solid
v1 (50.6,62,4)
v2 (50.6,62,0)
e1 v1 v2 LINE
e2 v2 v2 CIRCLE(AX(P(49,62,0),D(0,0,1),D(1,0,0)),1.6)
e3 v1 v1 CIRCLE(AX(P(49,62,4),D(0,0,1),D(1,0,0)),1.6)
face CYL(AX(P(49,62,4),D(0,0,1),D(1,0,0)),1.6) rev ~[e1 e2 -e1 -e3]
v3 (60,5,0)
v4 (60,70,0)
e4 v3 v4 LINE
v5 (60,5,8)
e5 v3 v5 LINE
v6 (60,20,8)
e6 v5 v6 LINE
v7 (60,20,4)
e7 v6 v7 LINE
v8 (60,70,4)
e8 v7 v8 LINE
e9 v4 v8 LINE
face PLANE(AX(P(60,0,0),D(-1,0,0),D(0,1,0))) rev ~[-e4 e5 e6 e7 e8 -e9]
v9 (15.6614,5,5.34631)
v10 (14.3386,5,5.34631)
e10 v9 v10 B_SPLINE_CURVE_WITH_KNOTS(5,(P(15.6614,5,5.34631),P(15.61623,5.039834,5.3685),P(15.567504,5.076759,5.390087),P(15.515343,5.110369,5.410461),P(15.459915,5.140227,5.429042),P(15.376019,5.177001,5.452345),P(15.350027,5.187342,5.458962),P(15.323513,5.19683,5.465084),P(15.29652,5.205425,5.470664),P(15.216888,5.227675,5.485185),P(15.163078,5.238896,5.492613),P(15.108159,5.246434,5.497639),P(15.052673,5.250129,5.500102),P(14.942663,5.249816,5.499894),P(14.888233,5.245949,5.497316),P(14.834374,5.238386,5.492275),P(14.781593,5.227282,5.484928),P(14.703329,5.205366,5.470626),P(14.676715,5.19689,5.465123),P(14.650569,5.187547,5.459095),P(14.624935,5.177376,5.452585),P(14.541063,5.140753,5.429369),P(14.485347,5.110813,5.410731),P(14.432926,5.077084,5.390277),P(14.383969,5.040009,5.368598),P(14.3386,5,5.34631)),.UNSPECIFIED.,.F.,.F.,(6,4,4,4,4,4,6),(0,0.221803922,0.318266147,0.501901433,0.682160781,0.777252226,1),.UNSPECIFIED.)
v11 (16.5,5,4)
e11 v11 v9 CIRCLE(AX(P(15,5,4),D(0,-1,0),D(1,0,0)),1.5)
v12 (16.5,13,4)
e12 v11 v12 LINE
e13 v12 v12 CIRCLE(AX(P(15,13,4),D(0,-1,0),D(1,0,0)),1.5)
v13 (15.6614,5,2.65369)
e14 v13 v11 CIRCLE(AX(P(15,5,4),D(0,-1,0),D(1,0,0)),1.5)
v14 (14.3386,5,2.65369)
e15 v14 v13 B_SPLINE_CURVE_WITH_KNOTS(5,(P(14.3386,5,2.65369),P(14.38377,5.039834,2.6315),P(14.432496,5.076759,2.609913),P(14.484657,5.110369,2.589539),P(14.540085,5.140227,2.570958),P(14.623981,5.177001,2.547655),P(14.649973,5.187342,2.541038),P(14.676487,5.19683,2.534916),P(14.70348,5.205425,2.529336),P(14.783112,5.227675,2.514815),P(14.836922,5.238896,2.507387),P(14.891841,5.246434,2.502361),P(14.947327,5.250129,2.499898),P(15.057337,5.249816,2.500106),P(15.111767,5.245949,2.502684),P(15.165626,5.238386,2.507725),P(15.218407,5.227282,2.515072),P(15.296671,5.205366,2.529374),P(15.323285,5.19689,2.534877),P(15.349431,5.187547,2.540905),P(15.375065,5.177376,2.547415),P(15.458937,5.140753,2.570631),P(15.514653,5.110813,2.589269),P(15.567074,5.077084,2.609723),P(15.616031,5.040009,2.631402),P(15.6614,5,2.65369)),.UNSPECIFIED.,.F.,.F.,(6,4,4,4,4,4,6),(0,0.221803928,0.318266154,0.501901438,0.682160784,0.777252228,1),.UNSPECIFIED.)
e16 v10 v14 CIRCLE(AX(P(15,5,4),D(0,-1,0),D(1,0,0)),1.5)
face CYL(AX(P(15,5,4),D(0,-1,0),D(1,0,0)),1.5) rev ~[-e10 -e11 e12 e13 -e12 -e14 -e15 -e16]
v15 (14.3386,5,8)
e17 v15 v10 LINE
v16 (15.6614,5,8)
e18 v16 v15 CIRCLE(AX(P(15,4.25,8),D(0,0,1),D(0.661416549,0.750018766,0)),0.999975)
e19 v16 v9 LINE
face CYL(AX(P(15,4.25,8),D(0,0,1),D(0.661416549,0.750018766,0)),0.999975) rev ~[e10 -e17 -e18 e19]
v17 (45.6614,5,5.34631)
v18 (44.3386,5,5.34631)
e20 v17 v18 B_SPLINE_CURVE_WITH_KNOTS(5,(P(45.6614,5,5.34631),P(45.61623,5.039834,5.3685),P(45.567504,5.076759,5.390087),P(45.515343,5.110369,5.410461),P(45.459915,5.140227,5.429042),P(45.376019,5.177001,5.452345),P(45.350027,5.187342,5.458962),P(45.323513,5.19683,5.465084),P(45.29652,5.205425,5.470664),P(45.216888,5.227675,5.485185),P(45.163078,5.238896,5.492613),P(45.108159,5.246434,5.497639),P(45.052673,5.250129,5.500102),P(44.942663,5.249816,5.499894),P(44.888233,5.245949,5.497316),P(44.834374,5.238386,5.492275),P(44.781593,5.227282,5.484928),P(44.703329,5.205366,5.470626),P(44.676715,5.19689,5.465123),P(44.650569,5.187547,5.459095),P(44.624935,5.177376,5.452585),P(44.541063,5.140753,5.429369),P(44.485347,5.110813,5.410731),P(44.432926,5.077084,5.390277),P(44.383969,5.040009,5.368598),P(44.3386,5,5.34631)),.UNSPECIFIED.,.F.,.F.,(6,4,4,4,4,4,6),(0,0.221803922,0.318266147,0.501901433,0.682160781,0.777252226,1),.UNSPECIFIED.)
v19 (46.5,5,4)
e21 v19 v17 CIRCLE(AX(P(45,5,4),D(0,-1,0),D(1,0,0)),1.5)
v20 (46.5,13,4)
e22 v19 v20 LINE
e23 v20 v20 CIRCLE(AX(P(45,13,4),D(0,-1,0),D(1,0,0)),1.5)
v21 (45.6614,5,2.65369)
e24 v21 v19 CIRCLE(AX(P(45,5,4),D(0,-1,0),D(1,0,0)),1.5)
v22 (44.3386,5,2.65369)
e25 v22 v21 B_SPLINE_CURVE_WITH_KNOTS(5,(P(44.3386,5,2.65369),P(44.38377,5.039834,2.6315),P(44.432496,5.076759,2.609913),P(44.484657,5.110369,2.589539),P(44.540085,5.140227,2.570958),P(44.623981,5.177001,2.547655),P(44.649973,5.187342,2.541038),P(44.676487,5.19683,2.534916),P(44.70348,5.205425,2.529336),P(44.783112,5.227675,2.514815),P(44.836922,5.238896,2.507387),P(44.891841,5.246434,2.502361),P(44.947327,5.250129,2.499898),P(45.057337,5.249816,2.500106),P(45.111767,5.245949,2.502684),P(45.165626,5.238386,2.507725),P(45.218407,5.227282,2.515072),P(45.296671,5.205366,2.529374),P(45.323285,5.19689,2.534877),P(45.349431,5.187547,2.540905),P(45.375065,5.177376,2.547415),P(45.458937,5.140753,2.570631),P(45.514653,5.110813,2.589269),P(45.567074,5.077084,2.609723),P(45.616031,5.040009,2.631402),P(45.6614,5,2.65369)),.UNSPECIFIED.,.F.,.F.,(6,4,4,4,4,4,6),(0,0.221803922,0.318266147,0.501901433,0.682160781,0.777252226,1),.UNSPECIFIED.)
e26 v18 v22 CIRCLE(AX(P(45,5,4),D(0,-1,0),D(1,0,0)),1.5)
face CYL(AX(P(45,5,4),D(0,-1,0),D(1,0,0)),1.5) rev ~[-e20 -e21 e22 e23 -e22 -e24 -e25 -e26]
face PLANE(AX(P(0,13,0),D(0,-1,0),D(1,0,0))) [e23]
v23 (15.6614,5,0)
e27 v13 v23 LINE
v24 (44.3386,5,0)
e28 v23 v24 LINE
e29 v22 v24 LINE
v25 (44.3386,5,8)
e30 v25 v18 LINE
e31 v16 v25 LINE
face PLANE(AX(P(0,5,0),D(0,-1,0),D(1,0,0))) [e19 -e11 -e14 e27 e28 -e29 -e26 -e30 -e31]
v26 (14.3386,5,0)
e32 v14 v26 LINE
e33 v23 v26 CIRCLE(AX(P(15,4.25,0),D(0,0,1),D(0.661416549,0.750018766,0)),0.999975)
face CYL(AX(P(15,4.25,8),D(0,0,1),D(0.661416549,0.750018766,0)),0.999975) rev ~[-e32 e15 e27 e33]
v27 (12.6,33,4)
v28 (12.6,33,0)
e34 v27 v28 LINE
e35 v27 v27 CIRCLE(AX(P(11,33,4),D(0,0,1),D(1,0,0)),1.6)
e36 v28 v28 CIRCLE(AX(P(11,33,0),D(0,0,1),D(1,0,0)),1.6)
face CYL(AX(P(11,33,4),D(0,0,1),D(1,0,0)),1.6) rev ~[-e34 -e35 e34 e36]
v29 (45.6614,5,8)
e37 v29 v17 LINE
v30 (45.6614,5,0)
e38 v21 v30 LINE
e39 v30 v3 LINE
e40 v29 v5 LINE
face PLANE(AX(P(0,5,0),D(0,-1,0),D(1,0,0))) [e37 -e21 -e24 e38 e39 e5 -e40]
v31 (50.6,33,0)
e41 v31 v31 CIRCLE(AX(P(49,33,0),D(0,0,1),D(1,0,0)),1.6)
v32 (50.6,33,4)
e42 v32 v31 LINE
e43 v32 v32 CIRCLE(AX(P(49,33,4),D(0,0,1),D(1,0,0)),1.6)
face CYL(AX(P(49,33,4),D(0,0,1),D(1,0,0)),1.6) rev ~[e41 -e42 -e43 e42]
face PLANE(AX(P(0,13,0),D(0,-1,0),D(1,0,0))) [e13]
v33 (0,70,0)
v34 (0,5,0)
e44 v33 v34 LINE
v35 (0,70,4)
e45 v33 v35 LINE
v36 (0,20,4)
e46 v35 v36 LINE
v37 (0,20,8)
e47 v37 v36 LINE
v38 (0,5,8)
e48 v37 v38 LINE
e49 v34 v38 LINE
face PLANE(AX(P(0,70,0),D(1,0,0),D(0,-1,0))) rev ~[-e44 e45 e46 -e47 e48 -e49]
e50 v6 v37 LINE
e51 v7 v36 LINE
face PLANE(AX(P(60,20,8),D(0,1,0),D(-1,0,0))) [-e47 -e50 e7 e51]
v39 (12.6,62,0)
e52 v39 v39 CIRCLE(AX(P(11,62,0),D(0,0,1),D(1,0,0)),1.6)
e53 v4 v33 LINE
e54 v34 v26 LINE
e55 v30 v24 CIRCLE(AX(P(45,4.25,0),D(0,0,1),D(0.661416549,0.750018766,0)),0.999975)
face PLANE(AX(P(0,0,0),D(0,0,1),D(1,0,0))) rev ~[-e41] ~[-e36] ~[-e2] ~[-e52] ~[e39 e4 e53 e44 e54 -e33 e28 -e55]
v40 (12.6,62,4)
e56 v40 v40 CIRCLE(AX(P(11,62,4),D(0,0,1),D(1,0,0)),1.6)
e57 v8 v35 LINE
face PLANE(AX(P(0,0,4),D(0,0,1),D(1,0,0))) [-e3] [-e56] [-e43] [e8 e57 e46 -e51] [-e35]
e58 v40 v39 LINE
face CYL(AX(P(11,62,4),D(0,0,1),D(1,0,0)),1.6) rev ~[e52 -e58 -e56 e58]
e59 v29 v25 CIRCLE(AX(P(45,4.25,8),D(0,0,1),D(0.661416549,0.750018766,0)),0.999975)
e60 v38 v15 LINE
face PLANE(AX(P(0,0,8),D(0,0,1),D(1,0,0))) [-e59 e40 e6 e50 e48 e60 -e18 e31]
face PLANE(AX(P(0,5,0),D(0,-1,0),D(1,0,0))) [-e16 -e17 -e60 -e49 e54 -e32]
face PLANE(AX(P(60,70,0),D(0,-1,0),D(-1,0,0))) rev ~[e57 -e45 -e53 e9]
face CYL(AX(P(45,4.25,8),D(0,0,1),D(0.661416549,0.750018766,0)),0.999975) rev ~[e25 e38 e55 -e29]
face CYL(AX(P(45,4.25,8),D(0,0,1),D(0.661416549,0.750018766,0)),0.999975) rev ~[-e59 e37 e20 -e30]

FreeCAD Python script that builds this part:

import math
import FreeCAD as App
import Part
import Sketcher

V = App.Vector
Q = App.Units.Quantity


def add_polygon(sketch, points):
    """Adds a closed chain of lines whose ends are joined by coincident constraints."""
    first, n = sketch.GeometryCount, len(points)
    for a, b in zip(points, points[1:] + points[:1]):
        sketch.addGeometry(Part.LineSegment(App.Vector(*a, 0), App.Vector(*b, 0)), False)
    for i in range(n):
        sketch.addConstraint(Sketcher.Constraint("Coincident", first + i, 2, first + (i + 1) % n, 1))

doc = App.newDocument("Part")
body = doc.addObject("PartDesign::Body", "Body")

# Sketch on XY plane
sketch1 = body.newObject("Sketcher::SketchObject", "Sketch")
sketch1.AttachmentSupport = (doc.getObject("XY_Plane"), [""])
sketch1.MapMode = "FlatFace"
add_polygon(sketch1, [(0, 70), (0, 0), (60, 0), (60, 70)])  # lines 0-3
sketch1.addConstraint([
    Sketcher.Constraint("Vertical", 0),
    Sketcher.Constraint("Horizontal", 1),
    Sketcher.Constraint("Vertical", 2),
    Sketcher.Constraint("Horizontal", 3),
    Sketcher.Constraint("Coincident", 0, 2, -1, 1),
    Sketcher.Constraint("DistanceX", 1, 1, 1, 2, Q("60 mm")),
    Sketcher.Constraint("DistanceY", 0, 2, 0, 1, Q("70 mm")),
])
pad1 = body.newObject("PartDesign::Pad", "Pad")
pad1.Profile = sketch1
pad1.Length = 8

# Sketch on XY plane
sketch2 = body.newObject("Sketcher::SketchObject", "Sketch001")
sketch2.AttachmentSupport = (doc.getObject("XY_Plane"), [""])
sketch2.MapMode = "FlatFace"
sketch2.AttachmentOffset = App.Placement(V(0, 0, 8), App.Rotation())
add_polygon(sketch2, [(0, 70), (0, 20), (60, 20), (60, 70)])  # lines 0-3
sketch2.addConstraint([
    Sketcher.Constraint("Vertical", 0),
    Sketcher.Constraint("Horizontal", 1),
    Sketcher.Constraint("Vertical", 2),
    Sketcher.Constraint("Horizontal", 3),
    Sketcher.Constraint("PointOnObject", 0, 2, -2),
    Sketcher.Constraint("DistanceX", 1, 1, 1, 2, Q("60 mm")),
    Sketcher.Constraint("DistanceY", 0, 2, 0, 1, Q("50 mm")),
    Sketcher.Constraint("DistanceY", -1, 1, 0, 2, Q("20 mm")),
])
pocket1 = body.newObject("PartDesign::Pocket", "Pocket")
pocket1.Profile = sketch2
pocket1.Length = 4

# Sketch on XY plane
sketch3 = body.newObject("Sketcher::SketchObject", "Sketch002")
sketch3.AttachmentSupport = (doc.getObject("XY_Plane"), [""])
sketch3.MapMode = "FlatFace"
sketch3.AttachmentOffset = App.Placement(V(0, 0, 4), App.Rotation())
sketch3.addGeometry([
    Part.Circle(V(11, 62, 0), V(0, 0, 1), 1.6),
    Part.Circle(V(49, 62, 0), V(0, 0, 1), 1.6),
    Part.Circle(V(11, 33, 0), V(0, 0, 1), 1.6),
    Part.Circle(V(49, 33, 0), V(0, 0, 1), 1.6),
], False)
sketch3.addConstraint([
    Sketcher.Constraint("Equal", 0, 1),
    Sketcher.Constraint("Equal", 1, 2),
    Sketcher.Constraint("Equal", 2, 3),
    Sketcher.Constraint("Horizontal", 0, 3, 1, 3),
    Sketcher.Constraint("Horizontal", 2, 3, 3, 3),
    Sketcher.Constraint("Vertical", 0, 3, 2, 3),
    Sketcher.Constraint("Vertical", 1, 3, 3, 3),
    Sketcher.Constraint("Diameter", 0, Q("3.2 mm")),
    Sketcher.Constraint("DistanceX", -1, 1, 0, 3, Q("11 mm")),
    Sketcher.Constraint("DistanceY", 2, 3, 0, 3, Q("29 mm")),
    Sketcher.Constraint("DistanceY", -1, 1, 0, 3, Q("62 mm")),
    Sketcher.Constraint("DistanceX", -1, 1, 1, 3, Q("49 mm")),
])
pocket2 = body.newObject("PartDesign::Pocket", "Pocket001")
pocket2.Profile = sketch3
pocket2.Length = 4

# Sketch on XZ plane
sketch4 = body.newObject("Sketcher::SketchObject", "Sketch003")
sketch4.AttachmentSupport = (doc.getObject("XZ_Plane"), [""])
sketch4.MapMode = "FlatFace"
add_polygon(sketch4, [(0, 8), (0, 0), (60, 0), (60, 8)])  # lines 0-3
sketch4.addConstraint([
    Sketcher.Constraint("Vertical", 0),
    Sketcher.Constraint("Horizontal", 1),
    Sketcher.Constraint("Vertical", 2),
    Sketcher.Constraint("Horizontal", 3),
    Sketcher.Constraint("Coincident", 0, 2, -1, 1),
    Sketcher.Constraint("DistanceX", 1, 1, 1, 2, Q("60 mm")),
    Sketcher.Constraint("DistanceY", 0, 2, 0, 1, Q("8 mm")),
])
pocket3 = body.newObject("PartDesign::Pocket", "Pocket002")
pocket3.Profile = sketch4
pocket3.Length = 5

# Sketch on XZ plane
sketch5 = body.newObject("Sketcher::SketchObject", "Sketch004")
sketch5.AttachmentSupport = (doc.getObject("XZ_Plane"), [""])
sketch5.MapMode = "FlatFace"
sketch5.AttachmentOffset = App.Placement(V(0, 0, -5), App.Rotation())
sketch5.addGeometry([
    Part.Circle(V(15, 4, 0), V(0, 0, 1), 1.5),
    Part.Circle(V(45, 4, 0), V(0, 0, 1), 1.5),
], False)
sketch5.addConstraint([
    Sketcher.Constraint("Equal", 0, 1),
    Sketcher.Constraint("Horizontal", 0, 3, 1, 3),
    Sketcher.Constraint("Diameter", 0, Q("3 mm")),
    Sketcher.Constraint("DistanceX", -1, 1, 0, 3, Q("15 mm")),
    Sketcher.Constraint("DistanceY", -1, 1, 0, 3, Q("4 mm")),
    Sketcher.Constraint("DistanceX", -1, 1, 1, 3, Q("45 mm")),
])
pocket4 = body.newObject("PartDesign::Pocket", "Pocket003")
pocket4.Profile = sketch5
pocket4.Length = 8

# Sketch on XY plane
sketch6 = body.newObject("Sketcher::SketchObject", "Sketch005")
sketch6.AttachmentSupport = (doc.getObject("XY_Plane"), [""])
sketch6.MapMode = "FlatFace"
sketch6.AttachmentOffset = App.Placement(V(0, 0, 8), App.Rotation())
sketch6.addGeometry([
    Part.LineSegment(V(14.3386, 5, 0), V(15.6614, 5, 0)),
    Part.ArcOfCircle(Part.Circle(V(15, 4.25, 0), V(0, 0, 1), 0.999975), math.radians(48.592003), math.radians(131.407997)),
    Part.LineSegment(V(44.3386, 5, 0), V(45.6614, 5, 0)),
    Part.ArcOfCircle(Part.Circle(V(45, 4.25, 0), V(0, 0, 1), 0.999975), math.radians(48.592003), math.radians(131.407997)),
], False)
sketch6.addConstraint([
    Sketcher.Constraint("Coincident", 0, 1, 1, 2),
    Sketcher.Constraint("Coincident", 1, 1, 0, 2),
    Sketcher.Constraint("Coincident", 2, 1, 3, 2),
    Sketcher.Constraint("Coincident", 3, 1, 2, 2),
    Sketcher.Constraint("Horizontal", 0),
    Sketcher.Constraint("Horizontal", 2),
    Sketcher.Constraint("Equal", 1, 3),
    Sketcher.Constraint("Horizontal", 1, 3, 3, 3),
    Sketcher.Constraint("Horizontal", 1, 1, 2, 1),
    Sketcher.Constraint("Radius", 1, Q("1 mm")),
    Sketcher.Constraint("DistanceY", 1, 3, 0, 1, Q("0.75 mm")),
    Sketcher.Constraint("DistanceX", -1, 1, 1, 3, Q("15 mm")),
    Sketcher.Constraint("DistanceX", -1, 1, 3, 3, Q("45 mm")),
    Sketcher.Constraint("DistanceY", -1, 1, 0, 1, Q("5 mm")),
])
pocket5 = body.newObject("PartDesign::Pocket", "Pocket004")
pocket5.Profile = sketch6
pocket5.Length = 8

doc.recompute()
